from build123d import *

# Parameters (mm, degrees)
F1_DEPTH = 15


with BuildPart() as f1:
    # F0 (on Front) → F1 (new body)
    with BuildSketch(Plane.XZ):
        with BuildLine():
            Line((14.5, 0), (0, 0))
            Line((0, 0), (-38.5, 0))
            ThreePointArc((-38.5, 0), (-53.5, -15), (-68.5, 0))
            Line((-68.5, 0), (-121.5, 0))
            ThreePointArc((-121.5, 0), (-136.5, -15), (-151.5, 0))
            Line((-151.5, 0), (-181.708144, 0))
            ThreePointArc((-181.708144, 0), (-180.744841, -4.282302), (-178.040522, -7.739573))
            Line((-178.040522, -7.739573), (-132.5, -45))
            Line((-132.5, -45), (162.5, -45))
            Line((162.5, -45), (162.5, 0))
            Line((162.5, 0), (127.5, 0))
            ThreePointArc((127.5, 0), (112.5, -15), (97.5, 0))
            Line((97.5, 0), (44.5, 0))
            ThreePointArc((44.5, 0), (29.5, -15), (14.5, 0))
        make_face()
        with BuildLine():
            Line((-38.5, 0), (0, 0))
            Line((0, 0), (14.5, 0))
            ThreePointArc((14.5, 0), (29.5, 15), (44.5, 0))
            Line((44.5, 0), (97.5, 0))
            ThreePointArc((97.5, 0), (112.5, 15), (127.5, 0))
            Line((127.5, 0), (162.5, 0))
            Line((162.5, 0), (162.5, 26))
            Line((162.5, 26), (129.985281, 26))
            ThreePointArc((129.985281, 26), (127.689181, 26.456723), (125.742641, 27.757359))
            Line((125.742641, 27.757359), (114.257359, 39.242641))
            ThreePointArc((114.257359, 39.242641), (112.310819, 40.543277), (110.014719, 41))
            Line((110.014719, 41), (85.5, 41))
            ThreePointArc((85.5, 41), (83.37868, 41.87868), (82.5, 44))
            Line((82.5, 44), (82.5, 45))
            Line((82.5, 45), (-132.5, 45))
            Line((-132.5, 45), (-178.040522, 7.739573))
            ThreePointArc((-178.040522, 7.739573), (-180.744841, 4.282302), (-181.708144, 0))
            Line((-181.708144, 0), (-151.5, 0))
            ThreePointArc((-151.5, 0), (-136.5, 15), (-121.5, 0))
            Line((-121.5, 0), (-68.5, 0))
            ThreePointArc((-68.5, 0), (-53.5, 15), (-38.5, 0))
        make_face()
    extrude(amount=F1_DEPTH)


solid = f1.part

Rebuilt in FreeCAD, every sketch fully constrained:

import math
import FreeCAD as App
import Part
import Sketcher
Q = App.Units.Quantity

doc = App.newDocument("Part")
body = doc.addObject("PartDesign::Body", "Body")

# Sketch on XZ plane
sketch1 = body.newObject("Sketcher::SketchObject", "Sketch")
sketch1.AttachmentSupport = (doc.getObject("XZ_Plane"), [""])
sketch1.MapMode = "FlatFace"
sketch1.addGeometry(Part.ArcOfCircle(Part.Circle(App.Vector(-171.708145, -0.000001, 0), App.Vector(0, 0, 1), 9.999999), math.radians(179.999997), math.radians(230.710595)), False)
sketch1.addGeometry(Part.LineSegment(App.Vector(-178.040522, -7.739573, 0), App.Vector(-132.5, -45, 0)), False)
sketch1.addGeometry(Part.LineSegment(App.Vector(-132.5, -45, 0), App.Vector(162.5, -45, 0)), False)
sketch1.addGeometry(Part.LineSegment(App.Vector(162.5, -45, 0), App.Vector(162.5, 26, 0)), False)
sketch1.addGeometry(Part.LineSegment(App.Vector(162.5, 26, 0), App.Vector(129.985281, 26, 0)), False)
sketch1.addGeometry(Part.ArcOfCircle(Part.Circle(App.Vector(129.985283, 32.000003, 0), App.Vector(0, 0, 1), 6.000003), math.radians(-134.999983), math.radians(-90.000016)), False)
sketch1.addGeometry(Part.LineSegment(App.Vector(125.742641, 27.757359, 0), App.Vector(114.257359, 39.242641, 0)), False)
sketch1.addGeometry(Part.ArcOfCircle(Part.Circle(App.Vector(110.014717, 34.999997, 0), App.Vector(0, 0, 1), 6.000003), math.radians(45.000017), math.radians(89.999984)), False)
sketch1.addGeometry(Part.LineSegment(App.Vector(110.014719, 41, 0), App.Vector(85.5, 41, 0)), False)
sketch1.addGeometry(Part.ArcOfCircle(Part.Circle(App.Vector(85.500001, 44.000001, 0), App.Vector(0, 0, 1), 3.000001), math.radians(-179.999978), math.radians(-90.000022)), False)
sketch1.addGeometry(Part.LineSegment(App.Vector(82.5, 44, 0), App.Vector(82.5, 45, 0)), False)
sketch1.addGeometry(Part.LineSegment(App.Vector(82.5, 45, 0), App.Vector(-132.5, 45, 0)), False)
sketch1.addGeometry(Part.LineSegment(App.Vector(-132.5, 45, 0), App.Vector(-178.040522, 7.739573, 0)), False)
sketch1.addGeometry(Part.ArcOfCircle(Part.Circle(App.Vector(-171.708145, 0.000001, 0), App.Vector(0, 0, 1), 9.999999), math.radians(129.289405), math.radians(180.000003)), False)
sketch1.addGeometry(Part.Circle(App.Vector(-53.5, 0, 0), App.Vector(0, 0, 1), 15), False)
sketch1.addGeometry(Part.Circle(App.Vector(-136.5, 0, 0), App.Vector(0, 0, 1), 15), False)
sketch1.addGeometry(Part.Circle(App.Vector(112.5, 0, 0), App.Vector(0, 0, 1), 15), False)
sketch1.addGeometry(Part.Circle(App.Vector(29.5, 0, 0), App.Vector(0, 0, 1), 15), False)
sketch1.addConstraint(Sketcher.Constraint("Tangent", 0, 2, 1, 1))
sketch1.addConstraint(Sketcher.Constraint("Coincident", 1, 2, 2, 1))
sketch1.addConstraint(Sketcher.Constraint("Coincident", 2, 2, 3, 1))
sketch1.addConstraint(Sketcher.Constraint("Coincident", 3, 2, 4, 1))
sketch1.addConstraint(Sketcher.Constraint("Tangent", 4, 2, 5, 2))
sketch1.addConstraint(Sketcher.Constraint("Tangent", 5, 1, 6, 1))
sketch1.addConstraint(Sketcher.Constraint("Tangent", 6, 2, 7, 1))
sketch1.addConstraint(Sketcher.Constraint("Tangent", 7, 2, 8, 1))
sketch1.addConstraint(Sketcher.Constraint("Tangent", 8, 2, 9, 2))
sketch1.addConstraint(Sketcher.Constraint("Tangent", 9, 1, 10, 1))
sketch1.addConstraint(Sketcher.Constraint("Coincident", 10, 2, 11, 1))
sketch1.addConstraint(Sketcher.Constraint("Coincident", 11, 2, 12, 1))
sketch1.addConstraint(Sketcher.Constraint("Tangent", 12, 2, 13, 1))
sketch1.addConstraint(Sketcher.Constraint("Tangent", 13, 2, 0, 1))
sketch1.addConstraint(Sketcher.Constraint("Horizontal", 2))
sketch1.addConstraint(Sketcher.Constraint("Vertical", 3))
sketch1.addConstraint(Sketcher.Constraint("Horizontal", 4))
sketch1.addConstraint(Sketcher.Constraint("Horizontal", 8))
sketch1.addConstraint(Sketcher.Constraint("Vertical", 10))
sketch1.addConstraint(Sketcher.Constraint("Horizontal", 11))
sketch1.addConstraint(Sketcher.Constraint("Equal", 5, 7))
sketch1.addConstraint(Sketcher.Constraint("Equal", 0, 13))
sketch1.addConstraint(Sketcher.Constraint("Equal", 14, 15))
sketch1.addConstraint(Sketcher.Constraint("Equal", 15, 16))
sketch1.addConstraint(Sketcher.Constraint("Equal", 16, 17))
sketch1.addConstraint(Sketcher.Constraint("Symmetric", 1, 2, 11, 2, -1))
sketch1.addConstraint(Sketcher.Constraint("PointOnObject", 0, 3, -1))
sketch1.addConstraint(Sketcher.Constraint("PointOnObject", 14, 3, -1))
sketch1.addConstraint(Sketcher.Constraint("PointOnObject", 15, 3, -1))
sketch1.addConstraint(Sketcher.Constraint("PointOnObject", 16, 3, -1))
sketch1.addConstraint(Sketcher.Constraint("PointOnObject", 17, 3, -1))
sketch1.addConstraint(Sketcher.Constraint("PointOnObject", 13, 2, -1))
sketch1.addConstraint(Sketcher.Constraint("Diameter", 14, Q("30 mm")))
sketch1.addConstraint(Sketcher.Constraint("Radius", 0, Q("9.999999 mm")))
sketch1.addConstraint(Sketcher.Constraint("Radius", 9, Q("3.000001 mm")))
sketch1.addConstraint(Sketcher.Constraint("DistanceX", 2, 1, 2, 2, Q("295 mm")))
sketch1.addConstraint(Sketcher.Constraint("DistanceX", 11, 2, 11, 1, Q("215 mm")))
sketch1.addConstraint(Sketcher.Constraint("DistanceY", 3, 1, 3, 2, Q("71 mm")))
sketch1.addConstraint(Sketcher.Constraint("DistanceY", 10, 1, 10, 2, Q("1 mm")))
sketch1.addConstraint(Sketcher.Constraint("Angle", 6, Q("135 deg")))
sketch1.addConstraint(Sketcher.Constraint("DistanceY", -1, 1, 9, 3, Q("44.000001 mm")))
sketch1.addConstraint(Sketcher.Constraint("DistanceX", 14, 3, 9, 3, Q("139.000001 mm")))
sketch1.addConstraint(Sketcher.Constraint("DistanceX", 15, 3, 14, 3, Q("83 mm")))
sketch1.addConstraint(Sketcher.Constraint("DistanceX", 9, 3, 16, 3, Q("26.999999 mm")))
sketch1.addConstraint(Sketcher.Constraint("DistanceX", 17, 3, 9, 3, Q("56.000001 mm")))
sketch1.addConstraint(Sketcher.Constraint("DistanceX", -1, 1, 9, 3, Q("85.500001 mm")))
sketch1.addConstraint(Sketcher.Constraint("Radius", 5, Q("6.000003 mm")))
sketch1.addConstraint(Sketcher.Constraint("DistanceX", 4, 2, 4, 1, Q("32.514719 mm")))
sketch1.addConstraint(Sketcher.Constraint("Distance", 1, Q("58.84113 mm")))
pad1 = body.newObject("PartDesign::Pad", "Pad")
pad1.Profile = sketch1
pad1.Length = 15

doc.recompute()
